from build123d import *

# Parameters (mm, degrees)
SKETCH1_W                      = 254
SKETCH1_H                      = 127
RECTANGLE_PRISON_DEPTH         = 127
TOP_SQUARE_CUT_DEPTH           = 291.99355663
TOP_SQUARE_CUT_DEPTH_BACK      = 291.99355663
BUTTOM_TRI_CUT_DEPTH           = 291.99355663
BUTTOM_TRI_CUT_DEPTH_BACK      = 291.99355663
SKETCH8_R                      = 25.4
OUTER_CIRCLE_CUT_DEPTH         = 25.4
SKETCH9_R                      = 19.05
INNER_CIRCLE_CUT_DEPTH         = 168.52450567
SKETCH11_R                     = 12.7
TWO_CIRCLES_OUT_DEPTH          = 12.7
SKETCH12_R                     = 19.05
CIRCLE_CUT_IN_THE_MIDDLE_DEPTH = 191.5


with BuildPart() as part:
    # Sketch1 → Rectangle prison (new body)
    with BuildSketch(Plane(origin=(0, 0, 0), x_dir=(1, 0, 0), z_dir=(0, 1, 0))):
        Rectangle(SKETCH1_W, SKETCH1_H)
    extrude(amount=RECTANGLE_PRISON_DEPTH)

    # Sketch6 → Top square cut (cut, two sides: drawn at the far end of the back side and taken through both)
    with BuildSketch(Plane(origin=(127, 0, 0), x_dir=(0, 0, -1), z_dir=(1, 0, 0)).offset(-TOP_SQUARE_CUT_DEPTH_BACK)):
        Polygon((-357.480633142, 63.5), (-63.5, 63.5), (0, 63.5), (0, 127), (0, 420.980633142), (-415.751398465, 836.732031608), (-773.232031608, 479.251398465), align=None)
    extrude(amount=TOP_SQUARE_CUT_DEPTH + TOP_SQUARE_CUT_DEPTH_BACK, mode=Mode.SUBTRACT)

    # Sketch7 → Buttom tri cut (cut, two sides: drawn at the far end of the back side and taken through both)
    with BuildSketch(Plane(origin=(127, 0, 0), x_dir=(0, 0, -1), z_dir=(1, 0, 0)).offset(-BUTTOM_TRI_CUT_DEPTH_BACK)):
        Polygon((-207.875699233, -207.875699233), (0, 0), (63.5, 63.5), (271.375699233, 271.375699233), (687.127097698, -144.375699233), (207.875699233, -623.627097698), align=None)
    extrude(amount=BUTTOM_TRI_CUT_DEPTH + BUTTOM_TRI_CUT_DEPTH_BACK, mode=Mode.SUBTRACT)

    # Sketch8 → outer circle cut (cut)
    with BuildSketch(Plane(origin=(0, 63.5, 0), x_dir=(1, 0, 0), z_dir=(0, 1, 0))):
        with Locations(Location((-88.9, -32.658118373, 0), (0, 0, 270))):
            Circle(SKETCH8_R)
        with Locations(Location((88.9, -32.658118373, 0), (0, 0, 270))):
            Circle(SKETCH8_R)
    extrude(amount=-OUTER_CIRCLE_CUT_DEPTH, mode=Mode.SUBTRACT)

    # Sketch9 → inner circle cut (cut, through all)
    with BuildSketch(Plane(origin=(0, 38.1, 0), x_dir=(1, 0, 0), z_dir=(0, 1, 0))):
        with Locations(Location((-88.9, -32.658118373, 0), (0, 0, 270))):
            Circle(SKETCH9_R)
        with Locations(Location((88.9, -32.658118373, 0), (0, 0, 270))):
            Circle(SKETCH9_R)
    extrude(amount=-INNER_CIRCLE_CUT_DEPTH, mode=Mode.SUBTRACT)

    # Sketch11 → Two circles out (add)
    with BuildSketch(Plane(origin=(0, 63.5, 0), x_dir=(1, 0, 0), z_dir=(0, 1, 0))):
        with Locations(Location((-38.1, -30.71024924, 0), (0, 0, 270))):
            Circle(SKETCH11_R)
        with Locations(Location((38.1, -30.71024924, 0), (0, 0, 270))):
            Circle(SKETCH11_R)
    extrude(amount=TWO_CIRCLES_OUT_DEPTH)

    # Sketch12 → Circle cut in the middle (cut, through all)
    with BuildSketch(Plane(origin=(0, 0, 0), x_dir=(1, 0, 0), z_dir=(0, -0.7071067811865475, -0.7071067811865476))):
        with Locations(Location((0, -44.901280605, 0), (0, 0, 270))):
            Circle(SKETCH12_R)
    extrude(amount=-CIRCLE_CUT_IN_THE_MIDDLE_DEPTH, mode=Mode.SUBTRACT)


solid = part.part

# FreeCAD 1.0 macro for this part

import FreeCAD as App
import Part
import Sketcher
from FreeCAD import Vector
Q = App.Units.Quantity

doc = App.newDocument("Part")
body = doc.addObject("PartDesign::Body", "Body")

# Sketch on XZ plane
sketch1 = body.newObject("Sketcher::SketchObject", "Sketch")
sketch1.AttachmentSupport = (doc.getObject("XZ_Plane"), [""])
sketch1.MapMode = "FlatFace"
sketch1.addGeometry([
    Part.LineSegment(Vector(-127, -64, 0), Vector(-127, 64, 0)),
    Part.LineSegment(Vector(-127, 64, 0), Vector(127, 64, 0)),
    Part.LineSegment(Vector(127, 64, 0), Vector(127, -64, 0)),
    Part.LineSegment(Vector(127, -64, 0), Vector(-127, -64, 0)),
], False)
sketch1.addConstraint([
    Sketcher.Constraint("Coincident", 0, 2, 1, 1),
    Sketcher.Constraint("Coincident", 1, 2, 2, 1),
    Sketcher.Constraint("Coincident", 2, 2, 3, 1),
    Sketcher.Constraint("Coincident", 3, 2, 0, 1),
    Sketcher.Constraint("Vertical", 0),
    Sketcher.Constraint("Horizontal", 1),
    Sketcher.Constraint("Vertical", 2),
    Sketcher.Constraint("Horizontal", 3),
    Sketcher.Constraint("Symmetric", 0, 2, 2, 2, -1, 1),
    Sketcher.Constraint("DistanceX", 1, 1, 1, 2, Q("10 in")),
    Sketcher.Constraint("DistanceY", 0, 1, 0, 2, Q("5 in")),
])
pad1 = body.newObject("PartDesign::Pad", "Pad")
pad1.Profile = sketch1
pad1.Length = Q("5 in")
pad1.Reversed = True

# Sketch on YZ plane
sketch2 = body.newObject("Sketcher::SketchObject", "Sketch001")
sketch2.AttachmentSupport = (doc.getObject("YZ_Plane"), [""])
sketch2.MapMode = "FlatFace"
sketch2.AttachmentOffset = App.Placement(Vector(0, 0, 5 * 25.4), App.Rotation())
sketch2.addGeometry([
    Part.LineSegment(Vector(64, 357, 0), Vector(64, 0, 0)),  # 0
    Part.LineSegment(Vector(64, 0, 0), Vector(421, 0, 0)),  # 1
    Part.LineSegment(Vector(421, 0, 0), Vector(837, 416, 0)),  # 2
    Part.LineSegment(Vector(837, 416, 0), Vector(479, 773, 0)),  # 3
    Part.LineSegment(Vector(479, 773, 0), Vector(64, 357, 0)),  # 4
], False)
sketch2.addConstraint([
    Sketcher.Constraint("Coincident", 0, 2, 1, 1),
    Sketcher.Constraint("Coincident", 1, 2, 2, 1),
    Sketcher.Constraint("Coincident", 2, 2, 3, 1),
    Sketcher.Constraint("Coincident", 3, 2, 4, 1),
    Sketcher.Constraint("Coincident", 4, 2, 0, 1),
    Sketcher.Constraint("Vertical", 0),
    Sketcher.Constraint("Horizontal", 1),
    Sketcher.Constraint("PointOnObject", 0, 2, -1),
    Sketcher.Constraint("Perpendicular", 2, 3),
    Sketcher.Constraint("Perpendicular", 3, 4),
    Sketcher.Constraint("Equal", 1, 0),
    Sketcher.Constraint("Equal", 2, 4),
    Sketcher.Constraint("DistanceX", -1, 1, 0, 2, Q("2.5 in")),
    Sketcher.Constraint("DistanceY", -1, 1, 2, 2, Q("415.751398 mm")),
    Sketcher.Constraint("Distance", 3, Q("505.55396 mm")),
])
pocket1 = body.newObject("PartDesign::Pocket", "Pocket")
pocket1.Profile = sketch2
pocket1.Type = "ThroughAll"
pocket1.Midplane = True

# Sketch on YZ plane
sketch3 = body.newObject("Sketcher::SketchObject", "Sketch002")
sketch3.AttachmentSupport = (doc.getObject("YZ_Plane"), [""])
sketch3.MapMode = "FlatFace"
sketch3.AttachmentOffset = App.Placement(Vector(0, 0, 5 * 25.4), App.Rotation())
sketch3.addGeometry([
    Part.LineSegment(Vector(271, -271, 0), Vector(-208, 208, 0)),
    Part.LineSegment(Vector(-208, 208, 0), Vector(-624, -208, 0)),
    Part.LineSegment(Vector(-624, -208, 0), Vector(-144, -687, 0)),
    Part.LineSegment(Vector(-144, -687, 0), Vector(271, -271, 0)),
], False)
sketch3.addConstraint([
    Sketcher.Constraint("Coincident", 0, 2, 1, 1),
    Sketcher.Constraint("Coincident", 1, 2, 2, 1),
    Sketcher.Constraint("Coincident", 2, 2, 3, 1),
    Sketcher.Constraint("Coincident", 3, 2, 0, 1),
    Sketcher.Constraint("Perpendicular", 0, 1),
    Sketcher.Constraint("Perpendicular", 1, 2),
    Sketcher.Constraint("Perpendicular", 2, 3),
    Sketcher.Constraint("Angle", 0, Q("135 deg")),
    Sketcher.Constraint("DistanceX", 0, 2, 2, 2, Q("2.5 in")),
    Sketcher.Constraint("DistanceX", 0, 2, -1, 1, Q("207.875699 mm")),
    Sketcher.Constraint("DistanceY", -1, 1, 0, 2, Q("207.875699 mm")),
    Sketcher.Constraint("DistanceY", 1, 2, -1, 1, Q("207.875699 mm")),
])
pocket2 = body.newObject("PartDesign::Pocket", "Pocket001")
pocket2.Profile = sketch3
pocket2.Type = "ThroughAll"
pocket2.Midplane = True

# Sketch on XZ plane
sketch4 = body.newObject("Sketcher::SketchObject", "Sketch003")
sketch4.AttachmentSupport = (doc.getObject("XZ_Plane"), [""])
sketch4.MapMode = "FlatFace"
sketch4.AttachmentOffset = App.Placement(Vector(0, 0, -2.5 * 25.4), App.Rotation())
sketch4.addGeometry([
    Part.Circle(Vector(-89, 33, 0), Vector(0, 0, 1), 25),
    Part.Circle(Vector(89, 33, 0), Vector(0, 0, 1), 25),
], False)
sketch4.addConstraint([
    Sketcher.Constraint("Equal", 0, 1),
    Sketcher.Constraint("Symmetric", 0, 3, 1, 3, -2),
    Sketcher.Constraint("Diameter", 0, Q("2 in")),
    Sketcher.Constraint("DistanceX", 0, 3, 1, 3, Q("7 in")),
    Sketcher.Constraint("DistanceY", -1, 1, 0, 3, Q("32.658118 mm")),
])
pocket3 = body.newObject("PartDesign::Pocket", "Pocket002")
pocket3.Profile = sketch4
pocket3.Length = Q("1 in")
pocket3.Reversed = True

# Sketch on XZ plane
sketch5 = body.newObject("Sketcher::SketchObject", "Sketch004")
sketch5.AttachmentSupport = (doc.getObject("XZ_Plane"), [""])
sketch5.MapMode = "FlatFace"
sketch5.AttachmentOffset = App.Placement(Vector(0, 0, -1.5 * 25.4), App.Rotation())
sketch5.addGeometry([
    Part.Circle(Vector(-89, 33, 0), Vector(0, 0, 1), 19),
    Part.Circle(Vector(89, 33, 0), Vector(0, 0, 1), 19),
], False)
sketch5.addConstraint([
    Sketcher.Constraint("Equal", 0, 1),
    Sketcher.Constraint("Symmetric", 0, 3, 1, 3, -2),
    Sketcher.Constraint("Diameter", 0, Q("1.5 in")),
    Sketcher.Constraint("DistanceX", 0, 3, 1, 3, Q("7 in")),
    Sketcher.Constraint("DistanceY", -1, 1, 0, 3, Q("32.658118 mm")),
])
pocket4 = body.newObject("PartDesign::Pocket", "Pocket003")
pocket4.Profile = sketch5
pocket4.Type = "ThroughAll"
pocket4.Reversed = True

# Sketch on XZ plane
sketch6 = body.newObject("Sketcher::SketchObject", "Sketch005")
sketch6.AttachmentSupport = (doc.getObject("XZ_Plane"), [""])
sketch6.MapMode = "FlatFace"
sketch6.AttachmentOffset = App.Placement(Vector(0, 0, -2.5 * 25.4), App.Rotation())
sketch6.addGeometry([
    Part.Circle(Vector(-38, 31, 0), Vector(0, 0, 1), 13),
    Part.Circle(Vector(38, 31, 0), Vector(0, 0, 1), 13),
], False)
sketch6.addConstraint([
    Sketcher.Constraint("Equal", 0, 1),
    Sketcher.Constraint("Symmetric", 0, 3, 1, 3, -2),
    Sketcher.Constraint("Diameter", 0, Q("1 in")),
    Sketcher.Constraint("DistanceX", 0, 3, 1, 3, Q("3 in")),
    Sketcher.Constraint("DistanceY", -1, 1, 0, 3, Q("30.710249 mm")),
])
pad2 = body.newObject("PartDesign::Pad", "Pad001")
pad2.Profile = sketch6
pad2.Length = Q("0.5 in")
pad2.Reversed = True

# Sketch on an angled plane
sketch7 = body.newObject("Sketcher::SketchObject", "Sketch006")
sketch7.Placement = App.Placement(Vector(0, 0, 0), App.Rotation(Vector(1, 0, 0), Vector(0, -0.707106781, 0.707106781), Vector(0, -0.707106781, -0.707106781), "ZXY"))
sketch7.addGeometry(Part.Circle(Vector(0, -45, 0), Vector(0, 0, 1), 19), False)
sketch7.addConstraint([
    Sketcher.Constraint("PointOnObject", 0, 3, -2),
    Sketcher.Constraint("Diameter", 0, Q("1.5 in")),
    Sketcher.Constraint("DistanceY", 0, 3, -1, 1, Q("44.901281 mm")),
])
pocket5 = body.newObject("PartDesign::Pocket", "Pocket004")
pocket5.Profile = sketch7
pocket5.Type = "ThroughAll"

doc.recompute()
